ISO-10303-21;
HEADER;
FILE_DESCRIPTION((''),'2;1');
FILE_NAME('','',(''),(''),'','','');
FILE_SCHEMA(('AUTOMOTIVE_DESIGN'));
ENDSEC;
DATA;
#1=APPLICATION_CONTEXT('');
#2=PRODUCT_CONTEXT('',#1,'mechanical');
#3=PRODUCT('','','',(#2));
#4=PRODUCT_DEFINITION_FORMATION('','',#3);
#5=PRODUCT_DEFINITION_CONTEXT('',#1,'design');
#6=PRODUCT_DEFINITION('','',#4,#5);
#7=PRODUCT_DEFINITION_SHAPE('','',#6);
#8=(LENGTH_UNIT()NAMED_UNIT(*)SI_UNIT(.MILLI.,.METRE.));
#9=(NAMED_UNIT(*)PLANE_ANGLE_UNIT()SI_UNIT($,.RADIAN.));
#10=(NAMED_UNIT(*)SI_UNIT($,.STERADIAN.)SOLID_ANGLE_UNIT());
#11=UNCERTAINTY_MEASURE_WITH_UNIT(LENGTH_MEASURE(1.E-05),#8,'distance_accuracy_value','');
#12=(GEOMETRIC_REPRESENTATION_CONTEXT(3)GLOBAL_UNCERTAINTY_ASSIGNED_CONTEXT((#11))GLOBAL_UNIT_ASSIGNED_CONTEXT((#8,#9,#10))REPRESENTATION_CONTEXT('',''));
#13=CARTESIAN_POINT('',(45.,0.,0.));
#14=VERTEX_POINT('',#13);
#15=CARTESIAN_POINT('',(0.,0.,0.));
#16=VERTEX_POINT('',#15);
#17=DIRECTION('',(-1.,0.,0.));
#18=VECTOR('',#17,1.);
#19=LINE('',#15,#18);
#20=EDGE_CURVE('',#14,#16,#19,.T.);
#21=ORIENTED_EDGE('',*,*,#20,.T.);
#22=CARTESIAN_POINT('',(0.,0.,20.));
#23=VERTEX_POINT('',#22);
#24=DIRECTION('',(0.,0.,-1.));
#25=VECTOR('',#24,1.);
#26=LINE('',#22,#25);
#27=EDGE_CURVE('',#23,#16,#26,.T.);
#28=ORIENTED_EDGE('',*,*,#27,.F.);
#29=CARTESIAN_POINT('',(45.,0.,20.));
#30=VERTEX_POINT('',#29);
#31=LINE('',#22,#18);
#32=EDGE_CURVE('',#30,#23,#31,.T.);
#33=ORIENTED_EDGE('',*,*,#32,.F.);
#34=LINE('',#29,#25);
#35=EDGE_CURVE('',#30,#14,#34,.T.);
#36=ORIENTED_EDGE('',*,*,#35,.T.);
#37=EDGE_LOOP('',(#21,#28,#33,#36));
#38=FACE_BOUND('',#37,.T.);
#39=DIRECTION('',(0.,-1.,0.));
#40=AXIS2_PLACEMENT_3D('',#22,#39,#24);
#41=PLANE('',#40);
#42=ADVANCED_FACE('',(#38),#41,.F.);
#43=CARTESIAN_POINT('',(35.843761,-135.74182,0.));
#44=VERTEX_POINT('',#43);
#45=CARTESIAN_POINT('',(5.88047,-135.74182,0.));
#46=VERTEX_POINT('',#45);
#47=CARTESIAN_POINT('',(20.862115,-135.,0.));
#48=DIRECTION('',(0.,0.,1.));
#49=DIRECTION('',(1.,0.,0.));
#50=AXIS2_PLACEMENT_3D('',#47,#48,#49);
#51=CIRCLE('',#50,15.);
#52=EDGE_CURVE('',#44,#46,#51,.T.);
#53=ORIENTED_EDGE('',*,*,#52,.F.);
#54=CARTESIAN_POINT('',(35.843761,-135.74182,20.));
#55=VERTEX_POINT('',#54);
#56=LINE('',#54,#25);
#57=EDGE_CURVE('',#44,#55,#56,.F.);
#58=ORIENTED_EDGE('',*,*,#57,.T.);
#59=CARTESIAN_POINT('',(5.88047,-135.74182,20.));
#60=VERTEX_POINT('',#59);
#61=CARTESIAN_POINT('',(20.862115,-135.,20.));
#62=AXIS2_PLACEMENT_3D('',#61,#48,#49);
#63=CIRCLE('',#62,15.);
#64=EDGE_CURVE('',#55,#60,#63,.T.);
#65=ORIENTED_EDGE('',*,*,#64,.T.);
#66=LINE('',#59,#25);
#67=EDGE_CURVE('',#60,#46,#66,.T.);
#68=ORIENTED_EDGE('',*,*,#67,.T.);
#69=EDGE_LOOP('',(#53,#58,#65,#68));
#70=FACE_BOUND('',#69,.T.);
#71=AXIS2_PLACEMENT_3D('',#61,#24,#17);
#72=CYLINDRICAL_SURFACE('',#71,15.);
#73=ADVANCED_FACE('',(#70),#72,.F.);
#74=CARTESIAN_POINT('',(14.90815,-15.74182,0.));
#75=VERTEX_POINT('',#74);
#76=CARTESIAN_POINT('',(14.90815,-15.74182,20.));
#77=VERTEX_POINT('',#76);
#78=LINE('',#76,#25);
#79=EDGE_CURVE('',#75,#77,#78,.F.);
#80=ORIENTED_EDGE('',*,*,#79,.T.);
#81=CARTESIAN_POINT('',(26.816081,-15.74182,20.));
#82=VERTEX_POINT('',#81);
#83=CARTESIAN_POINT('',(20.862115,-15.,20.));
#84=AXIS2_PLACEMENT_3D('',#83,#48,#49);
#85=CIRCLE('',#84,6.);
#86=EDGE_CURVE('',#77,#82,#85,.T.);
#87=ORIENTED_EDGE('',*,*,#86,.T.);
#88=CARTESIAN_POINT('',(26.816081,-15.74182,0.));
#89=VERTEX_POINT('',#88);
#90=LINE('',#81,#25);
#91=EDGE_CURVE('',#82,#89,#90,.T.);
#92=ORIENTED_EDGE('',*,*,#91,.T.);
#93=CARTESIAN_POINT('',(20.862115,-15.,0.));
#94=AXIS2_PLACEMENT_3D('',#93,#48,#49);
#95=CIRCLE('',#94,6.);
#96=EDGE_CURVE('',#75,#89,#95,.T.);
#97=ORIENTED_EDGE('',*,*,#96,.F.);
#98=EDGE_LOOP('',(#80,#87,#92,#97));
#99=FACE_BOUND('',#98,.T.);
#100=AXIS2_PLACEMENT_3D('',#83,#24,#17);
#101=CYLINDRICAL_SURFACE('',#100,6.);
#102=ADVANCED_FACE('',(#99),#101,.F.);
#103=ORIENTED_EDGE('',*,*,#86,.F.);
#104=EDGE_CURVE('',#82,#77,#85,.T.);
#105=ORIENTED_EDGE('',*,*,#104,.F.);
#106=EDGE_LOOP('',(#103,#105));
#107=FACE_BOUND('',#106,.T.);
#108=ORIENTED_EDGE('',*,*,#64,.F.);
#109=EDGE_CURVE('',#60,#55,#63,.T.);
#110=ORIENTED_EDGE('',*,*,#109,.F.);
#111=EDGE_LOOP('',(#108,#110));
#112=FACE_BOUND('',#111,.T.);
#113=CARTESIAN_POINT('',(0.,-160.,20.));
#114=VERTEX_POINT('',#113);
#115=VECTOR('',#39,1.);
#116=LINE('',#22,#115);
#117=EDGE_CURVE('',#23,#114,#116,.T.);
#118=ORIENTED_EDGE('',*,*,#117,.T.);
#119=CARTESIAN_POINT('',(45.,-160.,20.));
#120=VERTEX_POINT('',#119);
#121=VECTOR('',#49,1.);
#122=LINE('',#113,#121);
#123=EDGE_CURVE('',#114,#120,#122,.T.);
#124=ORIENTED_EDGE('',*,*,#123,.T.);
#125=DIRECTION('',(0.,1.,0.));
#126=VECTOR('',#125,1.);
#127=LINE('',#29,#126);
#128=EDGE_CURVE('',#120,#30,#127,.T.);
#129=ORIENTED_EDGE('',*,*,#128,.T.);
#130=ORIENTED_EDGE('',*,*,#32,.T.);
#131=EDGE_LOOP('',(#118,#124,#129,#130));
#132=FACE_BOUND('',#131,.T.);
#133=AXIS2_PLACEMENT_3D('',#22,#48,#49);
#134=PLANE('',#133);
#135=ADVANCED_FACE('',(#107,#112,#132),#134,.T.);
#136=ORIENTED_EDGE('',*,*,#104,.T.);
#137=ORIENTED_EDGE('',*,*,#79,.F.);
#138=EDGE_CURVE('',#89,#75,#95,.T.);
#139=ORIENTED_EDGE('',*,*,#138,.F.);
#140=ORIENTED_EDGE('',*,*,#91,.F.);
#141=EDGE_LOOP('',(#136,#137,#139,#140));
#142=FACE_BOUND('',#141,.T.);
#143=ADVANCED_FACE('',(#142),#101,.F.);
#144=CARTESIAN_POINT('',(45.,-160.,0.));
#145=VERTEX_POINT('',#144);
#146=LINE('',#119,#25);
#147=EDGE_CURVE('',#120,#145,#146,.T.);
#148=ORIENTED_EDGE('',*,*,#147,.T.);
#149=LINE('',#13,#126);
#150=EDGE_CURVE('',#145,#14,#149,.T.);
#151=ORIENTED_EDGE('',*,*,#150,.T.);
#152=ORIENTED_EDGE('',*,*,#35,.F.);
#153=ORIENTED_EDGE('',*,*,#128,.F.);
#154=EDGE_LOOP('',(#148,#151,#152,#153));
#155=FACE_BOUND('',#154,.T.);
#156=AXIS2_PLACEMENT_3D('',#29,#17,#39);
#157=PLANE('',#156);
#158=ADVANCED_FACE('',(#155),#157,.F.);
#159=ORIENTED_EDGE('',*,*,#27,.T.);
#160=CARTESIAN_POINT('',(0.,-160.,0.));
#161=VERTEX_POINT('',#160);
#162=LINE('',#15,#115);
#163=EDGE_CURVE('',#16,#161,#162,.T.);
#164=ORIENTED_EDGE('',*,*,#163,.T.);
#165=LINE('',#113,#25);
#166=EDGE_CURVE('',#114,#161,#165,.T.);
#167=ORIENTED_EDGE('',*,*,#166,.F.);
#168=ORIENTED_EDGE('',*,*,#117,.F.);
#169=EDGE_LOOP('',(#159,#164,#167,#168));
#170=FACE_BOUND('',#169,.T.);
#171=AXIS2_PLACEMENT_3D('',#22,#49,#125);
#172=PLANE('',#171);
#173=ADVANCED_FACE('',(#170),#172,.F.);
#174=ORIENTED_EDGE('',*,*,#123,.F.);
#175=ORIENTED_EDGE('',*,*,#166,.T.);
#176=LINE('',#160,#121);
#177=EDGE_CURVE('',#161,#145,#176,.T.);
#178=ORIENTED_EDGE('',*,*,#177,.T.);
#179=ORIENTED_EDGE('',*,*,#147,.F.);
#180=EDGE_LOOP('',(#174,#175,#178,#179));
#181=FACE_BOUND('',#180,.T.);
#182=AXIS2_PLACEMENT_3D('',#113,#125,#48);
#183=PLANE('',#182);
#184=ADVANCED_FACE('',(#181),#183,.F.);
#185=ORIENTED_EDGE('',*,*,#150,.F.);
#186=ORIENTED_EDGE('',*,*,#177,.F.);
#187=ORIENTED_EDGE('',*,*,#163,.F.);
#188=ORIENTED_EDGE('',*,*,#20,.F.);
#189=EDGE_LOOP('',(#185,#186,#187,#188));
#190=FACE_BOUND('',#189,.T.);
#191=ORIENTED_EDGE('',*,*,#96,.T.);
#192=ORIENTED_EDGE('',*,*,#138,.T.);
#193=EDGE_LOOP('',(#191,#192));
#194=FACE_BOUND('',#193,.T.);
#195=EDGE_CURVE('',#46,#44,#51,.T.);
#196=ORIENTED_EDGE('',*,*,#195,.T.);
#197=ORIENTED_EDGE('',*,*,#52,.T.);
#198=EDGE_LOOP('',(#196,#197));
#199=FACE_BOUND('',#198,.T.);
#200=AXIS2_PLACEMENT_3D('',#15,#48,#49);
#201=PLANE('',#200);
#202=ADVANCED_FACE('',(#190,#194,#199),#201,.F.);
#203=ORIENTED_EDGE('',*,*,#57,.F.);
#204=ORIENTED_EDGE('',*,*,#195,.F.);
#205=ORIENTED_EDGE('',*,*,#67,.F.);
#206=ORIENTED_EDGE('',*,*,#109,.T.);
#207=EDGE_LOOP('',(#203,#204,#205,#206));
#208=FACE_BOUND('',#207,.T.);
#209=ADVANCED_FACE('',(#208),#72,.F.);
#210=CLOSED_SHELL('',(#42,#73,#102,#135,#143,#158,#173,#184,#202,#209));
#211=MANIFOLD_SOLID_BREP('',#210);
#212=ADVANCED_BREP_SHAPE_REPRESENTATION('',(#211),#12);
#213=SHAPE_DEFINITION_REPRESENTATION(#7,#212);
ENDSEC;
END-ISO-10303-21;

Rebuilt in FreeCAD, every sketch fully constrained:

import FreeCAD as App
import Part
import Sketcher

V = App.Vector
Q = App.Units.Quantity

doc = App.newDocument("Part")
body = doc.addObject("PartDesign::Body", "Body")

# Sketch on XY plane
sketch1 = body.newObject("Sketcher::SketchObject", "Sketch")
sketch1.AttachmentSupport = (doc.getObject("XY_Plane"), [""])
sketch1.MapMode = "FlatFace"
sketch1.addGeometry([
    Part.LineSegment(V(0, 0, 0), V(0, -160, 0)),  # 0
    Part.LineSegment(V(0, -160, 0), V(45, -160, 0)),  # 1
    Part.LineSegment(V(45, -160, 0), V(45, 0, 0)),  # 2
    Part.LineSegment(V(45, 0, 0), V(0, 0, 0)),  # 3
    Part.Circle(V(21, -135, 0), V(0, 0, 1), 15),  # 4
    Part.Circle(V(21, -15, 0), V(0, 0, 1), 6),  # 5
], False)
sketch1.addConstraint([
    Sketcher.Constraint("Coincident", 0, 2, 1, 1),
    Sketcher.Constraint("Coincident", 1, 2, 2, 1),
    Sketcher.Constraint("Coincident", 2, 2, 3, 1),
    Sketcher.Constraint("Coincident", 3, 2, 0, 1),
    Sketcher.Constraint("Vertical", 0),
    Sketcher.Constraint("Horizontal", 1),
    Sketcher.Constraint("Vertical", 2),
    Sketcher.Constraint("Horizontal", 3),
    Sketcher.Constraint("Coincident", 3, 2, -1, 1),
    Sketcher.Constraint("Vertical", 4, 3, 5, 3),
    Sketcher.Constraint("Diameter", 4, Q("30 mm")),
    Sketcher.Constraint("Diameter", 5, Q("12 mm")),
    Sketcher.Constraint("DistanceX", 1, 1, 1, 2, Q("45 mm")),
    Sketcher.Constraint("DistanceY", 0, 2, 0, 1, Q("160 mm")),
    Sketcher.Constraint("DistanceY", 4, 3, -1, 1, Q("135 mm")),
    Sketcher.Constraint("DistanceY", 5, 3, -1, 1, Q("15 mm")),
    Sketcher.Constraint("DistanceX", -1, 1, 4, 3, Q("20.862115 mm")),
])
pad1 = body.newObject("PartDesign::Pad", "Pad")
pad1.Profile = sketch1
pad1.Length = 20

doc.recompute()
